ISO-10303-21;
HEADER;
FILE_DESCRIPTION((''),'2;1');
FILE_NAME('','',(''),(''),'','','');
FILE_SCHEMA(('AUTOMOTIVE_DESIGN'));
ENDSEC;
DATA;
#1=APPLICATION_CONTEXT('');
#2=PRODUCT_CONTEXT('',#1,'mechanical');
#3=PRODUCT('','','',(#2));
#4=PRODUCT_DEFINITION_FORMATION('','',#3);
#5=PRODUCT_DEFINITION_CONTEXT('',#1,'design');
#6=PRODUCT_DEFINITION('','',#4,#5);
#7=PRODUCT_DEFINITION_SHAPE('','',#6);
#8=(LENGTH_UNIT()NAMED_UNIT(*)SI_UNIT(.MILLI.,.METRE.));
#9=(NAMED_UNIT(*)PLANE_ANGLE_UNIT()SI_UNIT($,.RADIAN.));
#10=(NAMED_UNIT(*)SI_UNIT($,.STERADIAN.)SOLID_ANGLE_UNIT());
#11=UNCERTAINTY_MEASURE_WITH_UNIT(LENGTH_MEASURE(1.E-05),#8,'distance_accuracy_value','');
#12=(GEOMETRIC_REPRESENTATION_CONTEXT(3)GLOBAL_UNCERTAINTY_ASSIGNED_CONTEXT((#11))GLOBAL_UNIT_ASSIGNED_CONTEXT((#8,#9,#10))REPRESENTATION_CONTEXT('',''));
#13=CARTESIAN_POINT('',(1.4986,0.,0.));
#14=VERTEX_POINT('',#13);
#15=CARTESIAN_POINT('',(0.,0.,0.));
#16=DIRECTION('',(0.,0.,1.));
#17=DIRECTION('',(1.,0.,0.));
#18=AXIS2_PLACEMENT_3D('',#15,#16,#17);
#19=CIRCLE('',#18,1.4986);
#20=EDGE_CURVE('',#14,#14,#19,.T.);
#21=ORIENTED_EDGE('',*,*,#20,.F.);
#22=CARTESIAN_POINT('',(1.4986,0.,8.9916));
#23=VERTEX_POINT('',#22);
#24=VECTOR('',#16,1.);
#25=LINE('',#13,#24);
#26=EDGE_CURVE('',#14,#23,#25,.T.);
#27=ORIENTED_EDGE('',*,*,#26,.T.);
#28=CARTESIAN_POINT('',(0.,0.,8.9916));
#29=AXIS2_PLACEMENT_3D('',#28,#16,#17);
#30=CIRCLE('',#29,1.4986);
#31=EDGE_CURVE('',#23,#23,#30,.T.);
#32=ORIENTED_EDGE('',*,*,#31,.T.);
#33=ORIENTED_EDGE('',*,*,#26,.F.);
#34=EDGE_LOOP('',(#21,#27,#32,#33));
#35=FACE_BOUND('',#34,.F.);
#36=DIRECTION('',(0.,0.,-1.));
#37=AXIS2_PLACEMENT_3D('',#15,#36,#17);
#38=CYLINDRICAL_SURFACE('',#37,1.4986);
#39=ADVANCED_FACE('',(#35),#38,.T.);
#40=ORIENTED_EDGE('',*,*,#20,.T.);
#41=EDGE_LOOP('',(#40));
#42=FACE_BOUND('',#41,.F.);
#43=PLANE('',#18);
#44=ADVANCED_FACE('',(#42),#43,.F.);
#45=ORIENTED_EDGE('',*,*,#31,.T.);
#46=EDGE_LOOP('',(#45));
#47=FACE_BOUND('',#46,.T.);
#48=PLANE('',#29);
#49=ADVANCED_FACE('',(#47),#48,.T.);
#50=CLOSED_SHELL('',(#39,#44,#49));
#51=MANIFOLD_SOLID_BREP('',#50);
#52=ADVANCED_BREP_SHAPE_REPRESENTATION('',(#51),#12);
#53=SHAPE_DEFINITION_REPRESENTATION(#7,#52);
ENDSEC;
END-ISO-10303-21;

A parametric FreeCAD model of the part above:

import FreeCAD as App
import Part
import Sketcher
from FreeCAD import Vector
Q = App.Units.Quantity

doc = App.newDocument("Part")
body = doc.addObject("PartDesign::Body", "Body")

# Sketch on XY plane
sketch1 = body.newObject("Sketcher::SketchObject", "Sketch")
sketch1.AttachmentSupport = (doc.getObject("XY_Plane"), [""])
sketch1.MapMode = "FlatFace"
sketch1.addGeometry(Part.Circle(Vector(0, 0, 0), Vector(0, 0, 1), 1.5), False)
sketch1.addConstraint(Sketcher.Constraint("Coincident", 0, 3, -1, 1))
sketch1.addConstraint(Sketcher.Constraint("Diameter", 0, Q("0.118 in")))
pad1 = body.newObject("PartDesign::Pad", "Pad")
pad1.Profile = sketch1
pad1.Length = Q("0.354 in")

doc.recompute()
